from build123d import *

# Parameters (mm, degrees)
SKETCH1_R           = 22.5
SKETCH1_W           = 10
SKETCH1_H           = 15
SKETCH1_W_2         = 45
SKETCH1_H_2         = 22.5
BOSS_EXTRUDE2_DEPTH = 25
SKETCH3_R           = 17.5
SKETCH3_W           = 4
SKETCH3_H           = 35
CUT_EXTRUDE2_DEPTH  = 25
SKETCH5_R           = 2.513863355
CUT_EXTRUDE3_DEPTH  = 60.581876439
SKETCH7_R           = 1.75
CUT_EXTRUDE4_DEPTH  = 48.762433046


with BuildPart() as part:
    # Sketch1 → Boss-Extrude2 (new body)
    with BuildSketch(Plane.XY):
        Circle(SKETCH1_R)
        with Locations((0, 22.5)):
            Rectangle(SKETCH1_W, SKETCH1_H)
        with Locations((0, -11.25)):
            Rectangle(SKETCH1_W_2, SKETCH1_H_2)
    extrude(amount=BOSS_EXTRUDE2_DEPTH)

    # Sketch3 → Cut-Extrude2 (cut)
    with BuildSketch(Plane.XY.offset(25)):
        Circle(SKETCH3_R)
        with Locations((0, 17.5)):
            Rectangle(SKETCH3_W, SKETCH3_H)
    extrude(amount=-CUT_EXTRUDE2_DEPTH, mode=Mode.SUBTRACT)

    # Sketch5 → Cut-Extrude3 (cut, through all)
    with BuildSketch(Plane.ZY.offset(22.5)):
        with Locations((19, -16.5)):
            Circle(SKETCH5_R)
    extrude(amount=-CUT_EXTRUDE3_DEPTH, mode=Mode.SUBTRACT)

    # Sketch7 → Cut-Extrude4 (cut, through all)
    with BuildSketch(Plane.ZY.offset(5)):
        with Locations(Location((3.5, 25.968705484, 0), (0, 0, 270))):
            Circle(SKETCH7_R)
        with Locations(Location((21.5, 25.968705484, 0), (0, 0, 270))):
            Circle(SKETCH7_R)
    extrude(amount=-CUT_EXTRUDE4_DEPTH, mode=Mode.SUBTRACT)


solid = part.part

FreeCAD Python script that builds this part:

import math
import FreeCAD as App
import Part
import Sketcher
Q = App.Units.Quantity

doc = App.newDocument("Part")
body = doc.addObject("PartDesign::Body", "Body")

# Sketch on XY plane
sketch1 = body.newObject("Sketcher::SketchObject", "Sketch")
sketch1.AttachmentSupport = (doc.getObject("XY_Plane"), [""])
sketch1.MapMode = "FlatFace"
sketch1.addGeometry([
    Part.LineSegment(App.Vector(-5, 30, 0), App.Vector(-5, 21.937411, 0)),  # 0
    Part.ArcOfCircle(Part.Circle(App.Vector(0, 0, 0), App.Vector(0, 0, 1), 22.5), math.radians(102.839588), math.radians(180)),  # 1
    Part.LineSegment(App.Vector(-22.5, 0, 0), App.Vector(-22.5, -22.5, 0)),  # 2
    Part.LineSegment(App.Vector(-22.5, -22.5, 0), App.Vector(22.5, -22.5, 0)),  # 3
    Part.LineSegment(App.Vector(22.5, -22.5, 0), App.Vector(22.5, 0, 0)),  # 4
    Part.ArcOfCircle(Part.Circle(App.Vector(0, 0, 0), App.Vector(0, 0, 1), 22.5), math.radians(0), math.radians(77.160412)),  # 5
    Part.LineSegment(App.Vector(5, 21.937411, 0), App.Vector(5, 30, 0)),  # 6
    Part.LineSegment(App.Vector(5, 30, 0), App.Vector(-5, 30, 0)),  # 7
], False)
sketch1.addConstraint([
    Sketcher.Constraint("Coincident", 0, 2, 1, 1),
    Sketcher.Constraint("Tangent", 1, 2, 2, 1),
    Sketcher.Constraint("Coincident", 2, 2, 3, 1),
    Sketcher.Constraint("Coincident", 3, 2, 4, 1),
    Sketcher.Constraint("Tangent", 4, 2, 5, 1),
    Sketcher.Constraint("Coincident", 5, 2, 6, 1),
    Sketcher.Constraint("Coincident", 6, 2, 7, 1),
    Sketcher.Constraint("Coincident", 7, 2, 0, 1),
    Sketcher.Constraint("Vertical", 0),
    Sketcher.Constraint("Vertical", 2),
    Sketcher.Constraint("Horizontal", 3),
    Sketcher.Constraint("Vertical", 4),
    Sketcher.Constraint("Vertical", 6),
    Sketcher.Constraint("Horizontal", 7),
    Sketcher.Constraint("Coincident", 1, 3, -1, 1),
    Sketcher.Constraint("Coincident", 5, 3, -1, 1),
    Sketcher.Constraint("Equal", 1, 5),
    Sketcher.Constraint("Horizontal", 0, 2, 5, 2),
    Sketcher.Constraint("Radius", 1, Q("22.5 mm")),
    Sketcher.Constraint("DistanceX", 7, 2, 7, 1, Q("10 mm")),
    Sketcher.Constraint("DistanceY", 2, 2, 2, 1, Q("22.5 mm")),
    Sketcher.Constraint("DistanceY", -1, 1, 6, 2, Q("30 mm")),
])
pad1 = body.newObject("PartDesign::Pad", "Pad")
pad1.Profile = sketch1
pad1.Length = 25

# Sketch on XY plane
sketch2 = body.newObject("Sketcher::SketchObject", "Sketch001")
sketch2.AttachmentSupport = (doc.getObject("XY_Plane"), [""])
sketch2.MapMode = "FlatFace"
sketch2.AttachmentOffset = App.Placement(App.Vector(0, 0, 25), App.Rotation())
sketch2.addGeometry([
    Part.ArcOfCircle(Part.Circle(App.Vector(0, 0, 0), App.Vector(0, 0, 1), 17.5), math.radians(96.562428), math.radians(443.437572)),
    Part.LineSegment(App.Vector(2, 17.385339, 0), App.Vector(2, 35, 0)),
    Part.LineSegment(App.Vector(2, 35, 0), App.Vector(-2, 35, 0)),
    Part.LineSegment(App.Vector(-2, 35, 0), App.Vector(-2, 17.385339, 0)),
], False)
sketch2.addConstraint([
    Sketcher.Constraint("Coincident", 0, 2, 1, 1),
    Sketcher.Constraint("Coincident", 1, 2, 2, 1),
    Sketcher.Constraint("Coincident", 2, 2, 3, 1),
    Sketcher.Constraint("Coincident", 3, 2, 0, 1),
    Sketcher.Constraint("Vertical", 1),
    Sketcher.Constraint("Horizontal", 2),
    Sketcher.Constraint("Vertical", 3),
    Sketcher.Constraint("Coincident", 0, 3, -1, 1),
    Sketcher.Constraint("Horizontal", 0, 2, 3, 2),
    Sketcher.Constraint("Radius", 0, Q("17.5 mm")),
    Sketcher.Constraint("DistanceX", 2, 2, 2, 1, Q("4 mm")),
    Sketcher.Constraint("DistanceY", -1, 1, 1, 2, Q("35 mm")),
])
pocket1 = body.newObject("PartDesign::Pocket", "Pocket")
pocket1.Profile = sketch2
pocket1.Length = 25

# Sketch on YZ plane
sketch3 = body.newObject("Sketcher::SketchObject", "Sketch002")
sketch3.AttachmentSupport = (doc.getObject("YZ_Plane"), [""])
sketch3.MapMode = "FlatFace"
sketch3.AttachmentOffset = App.Placement(App.Vector(0, 0, -22.5), App.Rotation())
sketch3.addGeometry(Part.Circle(App.Vector(-16.5, 19, 0), App.Vector(0, 0, 1), 2.513863), False)
sketch3.addConstraint([
    Sketcher.Constraint("DistanceY", -1, 1, 0, 3, Q("19 mm")),
    Sketcher.Constraint("DistanceX", 0, 3, -1, 1, Q("16.5 mm")),
    Sketcher.Constraint("Diameter", 0, Q("5.027727 mm")),
])
pocket2 = body.newObject("PartDesign::Pocket", "Pocket001")
pocket2.Profile = sketch3
pocket2.Type = "ThroughAll"
pocket2.Reversed = True

# Sketch on YZ plane
sketch4 = body.newObject("Sketcher::SketchObject", "Sketch003")
sketch4.AttachmentSupport = (doc.getObject("YZ_Plane"), [""])
sketch4.MapMode = "FlatFace"
sketch4.AttachmentOffset = App.Placement(App.Vector(0, 0, -5), App.Rotation())
sketch4.addGeometry([
    Part.Circle(App.Vector(25.968705, 3.5, 0), App.Vector(0, 0, 1), 1.75),
    Part.Circle(App.Vector(25.968705, 21.5, 0), App.Vector(0, 0, 1), 1.75),
], False)
sketch4.addConstraint([
    Sketcher.Constraint("Equal", 0, 1),
    Sketcher.Constraint("Vertical", 0, 3, 1, 3),
    Sketcher.Constraint("Diameter", 0, Q("3.5 mm")),
    Sketcher.Constraint("DistanceY", 0, 3, 1, 3, Q("18 mm")),
    Sketcher.Constraint("DistanceY", -1, 1, 0, 3, Q("3.5 mm")),
    Sketcher.Constraint("DistanceX", -1, 1, 0, 3, Q("25.968705 mm")),
])
pocket3 = body.newObject("PartDesign::Pocket", "Pocket002")
pocket3.Profile = sketch4
pocket3.Type = "ThroughAll"
pocket3.Reversed = True

doc.recompute()
